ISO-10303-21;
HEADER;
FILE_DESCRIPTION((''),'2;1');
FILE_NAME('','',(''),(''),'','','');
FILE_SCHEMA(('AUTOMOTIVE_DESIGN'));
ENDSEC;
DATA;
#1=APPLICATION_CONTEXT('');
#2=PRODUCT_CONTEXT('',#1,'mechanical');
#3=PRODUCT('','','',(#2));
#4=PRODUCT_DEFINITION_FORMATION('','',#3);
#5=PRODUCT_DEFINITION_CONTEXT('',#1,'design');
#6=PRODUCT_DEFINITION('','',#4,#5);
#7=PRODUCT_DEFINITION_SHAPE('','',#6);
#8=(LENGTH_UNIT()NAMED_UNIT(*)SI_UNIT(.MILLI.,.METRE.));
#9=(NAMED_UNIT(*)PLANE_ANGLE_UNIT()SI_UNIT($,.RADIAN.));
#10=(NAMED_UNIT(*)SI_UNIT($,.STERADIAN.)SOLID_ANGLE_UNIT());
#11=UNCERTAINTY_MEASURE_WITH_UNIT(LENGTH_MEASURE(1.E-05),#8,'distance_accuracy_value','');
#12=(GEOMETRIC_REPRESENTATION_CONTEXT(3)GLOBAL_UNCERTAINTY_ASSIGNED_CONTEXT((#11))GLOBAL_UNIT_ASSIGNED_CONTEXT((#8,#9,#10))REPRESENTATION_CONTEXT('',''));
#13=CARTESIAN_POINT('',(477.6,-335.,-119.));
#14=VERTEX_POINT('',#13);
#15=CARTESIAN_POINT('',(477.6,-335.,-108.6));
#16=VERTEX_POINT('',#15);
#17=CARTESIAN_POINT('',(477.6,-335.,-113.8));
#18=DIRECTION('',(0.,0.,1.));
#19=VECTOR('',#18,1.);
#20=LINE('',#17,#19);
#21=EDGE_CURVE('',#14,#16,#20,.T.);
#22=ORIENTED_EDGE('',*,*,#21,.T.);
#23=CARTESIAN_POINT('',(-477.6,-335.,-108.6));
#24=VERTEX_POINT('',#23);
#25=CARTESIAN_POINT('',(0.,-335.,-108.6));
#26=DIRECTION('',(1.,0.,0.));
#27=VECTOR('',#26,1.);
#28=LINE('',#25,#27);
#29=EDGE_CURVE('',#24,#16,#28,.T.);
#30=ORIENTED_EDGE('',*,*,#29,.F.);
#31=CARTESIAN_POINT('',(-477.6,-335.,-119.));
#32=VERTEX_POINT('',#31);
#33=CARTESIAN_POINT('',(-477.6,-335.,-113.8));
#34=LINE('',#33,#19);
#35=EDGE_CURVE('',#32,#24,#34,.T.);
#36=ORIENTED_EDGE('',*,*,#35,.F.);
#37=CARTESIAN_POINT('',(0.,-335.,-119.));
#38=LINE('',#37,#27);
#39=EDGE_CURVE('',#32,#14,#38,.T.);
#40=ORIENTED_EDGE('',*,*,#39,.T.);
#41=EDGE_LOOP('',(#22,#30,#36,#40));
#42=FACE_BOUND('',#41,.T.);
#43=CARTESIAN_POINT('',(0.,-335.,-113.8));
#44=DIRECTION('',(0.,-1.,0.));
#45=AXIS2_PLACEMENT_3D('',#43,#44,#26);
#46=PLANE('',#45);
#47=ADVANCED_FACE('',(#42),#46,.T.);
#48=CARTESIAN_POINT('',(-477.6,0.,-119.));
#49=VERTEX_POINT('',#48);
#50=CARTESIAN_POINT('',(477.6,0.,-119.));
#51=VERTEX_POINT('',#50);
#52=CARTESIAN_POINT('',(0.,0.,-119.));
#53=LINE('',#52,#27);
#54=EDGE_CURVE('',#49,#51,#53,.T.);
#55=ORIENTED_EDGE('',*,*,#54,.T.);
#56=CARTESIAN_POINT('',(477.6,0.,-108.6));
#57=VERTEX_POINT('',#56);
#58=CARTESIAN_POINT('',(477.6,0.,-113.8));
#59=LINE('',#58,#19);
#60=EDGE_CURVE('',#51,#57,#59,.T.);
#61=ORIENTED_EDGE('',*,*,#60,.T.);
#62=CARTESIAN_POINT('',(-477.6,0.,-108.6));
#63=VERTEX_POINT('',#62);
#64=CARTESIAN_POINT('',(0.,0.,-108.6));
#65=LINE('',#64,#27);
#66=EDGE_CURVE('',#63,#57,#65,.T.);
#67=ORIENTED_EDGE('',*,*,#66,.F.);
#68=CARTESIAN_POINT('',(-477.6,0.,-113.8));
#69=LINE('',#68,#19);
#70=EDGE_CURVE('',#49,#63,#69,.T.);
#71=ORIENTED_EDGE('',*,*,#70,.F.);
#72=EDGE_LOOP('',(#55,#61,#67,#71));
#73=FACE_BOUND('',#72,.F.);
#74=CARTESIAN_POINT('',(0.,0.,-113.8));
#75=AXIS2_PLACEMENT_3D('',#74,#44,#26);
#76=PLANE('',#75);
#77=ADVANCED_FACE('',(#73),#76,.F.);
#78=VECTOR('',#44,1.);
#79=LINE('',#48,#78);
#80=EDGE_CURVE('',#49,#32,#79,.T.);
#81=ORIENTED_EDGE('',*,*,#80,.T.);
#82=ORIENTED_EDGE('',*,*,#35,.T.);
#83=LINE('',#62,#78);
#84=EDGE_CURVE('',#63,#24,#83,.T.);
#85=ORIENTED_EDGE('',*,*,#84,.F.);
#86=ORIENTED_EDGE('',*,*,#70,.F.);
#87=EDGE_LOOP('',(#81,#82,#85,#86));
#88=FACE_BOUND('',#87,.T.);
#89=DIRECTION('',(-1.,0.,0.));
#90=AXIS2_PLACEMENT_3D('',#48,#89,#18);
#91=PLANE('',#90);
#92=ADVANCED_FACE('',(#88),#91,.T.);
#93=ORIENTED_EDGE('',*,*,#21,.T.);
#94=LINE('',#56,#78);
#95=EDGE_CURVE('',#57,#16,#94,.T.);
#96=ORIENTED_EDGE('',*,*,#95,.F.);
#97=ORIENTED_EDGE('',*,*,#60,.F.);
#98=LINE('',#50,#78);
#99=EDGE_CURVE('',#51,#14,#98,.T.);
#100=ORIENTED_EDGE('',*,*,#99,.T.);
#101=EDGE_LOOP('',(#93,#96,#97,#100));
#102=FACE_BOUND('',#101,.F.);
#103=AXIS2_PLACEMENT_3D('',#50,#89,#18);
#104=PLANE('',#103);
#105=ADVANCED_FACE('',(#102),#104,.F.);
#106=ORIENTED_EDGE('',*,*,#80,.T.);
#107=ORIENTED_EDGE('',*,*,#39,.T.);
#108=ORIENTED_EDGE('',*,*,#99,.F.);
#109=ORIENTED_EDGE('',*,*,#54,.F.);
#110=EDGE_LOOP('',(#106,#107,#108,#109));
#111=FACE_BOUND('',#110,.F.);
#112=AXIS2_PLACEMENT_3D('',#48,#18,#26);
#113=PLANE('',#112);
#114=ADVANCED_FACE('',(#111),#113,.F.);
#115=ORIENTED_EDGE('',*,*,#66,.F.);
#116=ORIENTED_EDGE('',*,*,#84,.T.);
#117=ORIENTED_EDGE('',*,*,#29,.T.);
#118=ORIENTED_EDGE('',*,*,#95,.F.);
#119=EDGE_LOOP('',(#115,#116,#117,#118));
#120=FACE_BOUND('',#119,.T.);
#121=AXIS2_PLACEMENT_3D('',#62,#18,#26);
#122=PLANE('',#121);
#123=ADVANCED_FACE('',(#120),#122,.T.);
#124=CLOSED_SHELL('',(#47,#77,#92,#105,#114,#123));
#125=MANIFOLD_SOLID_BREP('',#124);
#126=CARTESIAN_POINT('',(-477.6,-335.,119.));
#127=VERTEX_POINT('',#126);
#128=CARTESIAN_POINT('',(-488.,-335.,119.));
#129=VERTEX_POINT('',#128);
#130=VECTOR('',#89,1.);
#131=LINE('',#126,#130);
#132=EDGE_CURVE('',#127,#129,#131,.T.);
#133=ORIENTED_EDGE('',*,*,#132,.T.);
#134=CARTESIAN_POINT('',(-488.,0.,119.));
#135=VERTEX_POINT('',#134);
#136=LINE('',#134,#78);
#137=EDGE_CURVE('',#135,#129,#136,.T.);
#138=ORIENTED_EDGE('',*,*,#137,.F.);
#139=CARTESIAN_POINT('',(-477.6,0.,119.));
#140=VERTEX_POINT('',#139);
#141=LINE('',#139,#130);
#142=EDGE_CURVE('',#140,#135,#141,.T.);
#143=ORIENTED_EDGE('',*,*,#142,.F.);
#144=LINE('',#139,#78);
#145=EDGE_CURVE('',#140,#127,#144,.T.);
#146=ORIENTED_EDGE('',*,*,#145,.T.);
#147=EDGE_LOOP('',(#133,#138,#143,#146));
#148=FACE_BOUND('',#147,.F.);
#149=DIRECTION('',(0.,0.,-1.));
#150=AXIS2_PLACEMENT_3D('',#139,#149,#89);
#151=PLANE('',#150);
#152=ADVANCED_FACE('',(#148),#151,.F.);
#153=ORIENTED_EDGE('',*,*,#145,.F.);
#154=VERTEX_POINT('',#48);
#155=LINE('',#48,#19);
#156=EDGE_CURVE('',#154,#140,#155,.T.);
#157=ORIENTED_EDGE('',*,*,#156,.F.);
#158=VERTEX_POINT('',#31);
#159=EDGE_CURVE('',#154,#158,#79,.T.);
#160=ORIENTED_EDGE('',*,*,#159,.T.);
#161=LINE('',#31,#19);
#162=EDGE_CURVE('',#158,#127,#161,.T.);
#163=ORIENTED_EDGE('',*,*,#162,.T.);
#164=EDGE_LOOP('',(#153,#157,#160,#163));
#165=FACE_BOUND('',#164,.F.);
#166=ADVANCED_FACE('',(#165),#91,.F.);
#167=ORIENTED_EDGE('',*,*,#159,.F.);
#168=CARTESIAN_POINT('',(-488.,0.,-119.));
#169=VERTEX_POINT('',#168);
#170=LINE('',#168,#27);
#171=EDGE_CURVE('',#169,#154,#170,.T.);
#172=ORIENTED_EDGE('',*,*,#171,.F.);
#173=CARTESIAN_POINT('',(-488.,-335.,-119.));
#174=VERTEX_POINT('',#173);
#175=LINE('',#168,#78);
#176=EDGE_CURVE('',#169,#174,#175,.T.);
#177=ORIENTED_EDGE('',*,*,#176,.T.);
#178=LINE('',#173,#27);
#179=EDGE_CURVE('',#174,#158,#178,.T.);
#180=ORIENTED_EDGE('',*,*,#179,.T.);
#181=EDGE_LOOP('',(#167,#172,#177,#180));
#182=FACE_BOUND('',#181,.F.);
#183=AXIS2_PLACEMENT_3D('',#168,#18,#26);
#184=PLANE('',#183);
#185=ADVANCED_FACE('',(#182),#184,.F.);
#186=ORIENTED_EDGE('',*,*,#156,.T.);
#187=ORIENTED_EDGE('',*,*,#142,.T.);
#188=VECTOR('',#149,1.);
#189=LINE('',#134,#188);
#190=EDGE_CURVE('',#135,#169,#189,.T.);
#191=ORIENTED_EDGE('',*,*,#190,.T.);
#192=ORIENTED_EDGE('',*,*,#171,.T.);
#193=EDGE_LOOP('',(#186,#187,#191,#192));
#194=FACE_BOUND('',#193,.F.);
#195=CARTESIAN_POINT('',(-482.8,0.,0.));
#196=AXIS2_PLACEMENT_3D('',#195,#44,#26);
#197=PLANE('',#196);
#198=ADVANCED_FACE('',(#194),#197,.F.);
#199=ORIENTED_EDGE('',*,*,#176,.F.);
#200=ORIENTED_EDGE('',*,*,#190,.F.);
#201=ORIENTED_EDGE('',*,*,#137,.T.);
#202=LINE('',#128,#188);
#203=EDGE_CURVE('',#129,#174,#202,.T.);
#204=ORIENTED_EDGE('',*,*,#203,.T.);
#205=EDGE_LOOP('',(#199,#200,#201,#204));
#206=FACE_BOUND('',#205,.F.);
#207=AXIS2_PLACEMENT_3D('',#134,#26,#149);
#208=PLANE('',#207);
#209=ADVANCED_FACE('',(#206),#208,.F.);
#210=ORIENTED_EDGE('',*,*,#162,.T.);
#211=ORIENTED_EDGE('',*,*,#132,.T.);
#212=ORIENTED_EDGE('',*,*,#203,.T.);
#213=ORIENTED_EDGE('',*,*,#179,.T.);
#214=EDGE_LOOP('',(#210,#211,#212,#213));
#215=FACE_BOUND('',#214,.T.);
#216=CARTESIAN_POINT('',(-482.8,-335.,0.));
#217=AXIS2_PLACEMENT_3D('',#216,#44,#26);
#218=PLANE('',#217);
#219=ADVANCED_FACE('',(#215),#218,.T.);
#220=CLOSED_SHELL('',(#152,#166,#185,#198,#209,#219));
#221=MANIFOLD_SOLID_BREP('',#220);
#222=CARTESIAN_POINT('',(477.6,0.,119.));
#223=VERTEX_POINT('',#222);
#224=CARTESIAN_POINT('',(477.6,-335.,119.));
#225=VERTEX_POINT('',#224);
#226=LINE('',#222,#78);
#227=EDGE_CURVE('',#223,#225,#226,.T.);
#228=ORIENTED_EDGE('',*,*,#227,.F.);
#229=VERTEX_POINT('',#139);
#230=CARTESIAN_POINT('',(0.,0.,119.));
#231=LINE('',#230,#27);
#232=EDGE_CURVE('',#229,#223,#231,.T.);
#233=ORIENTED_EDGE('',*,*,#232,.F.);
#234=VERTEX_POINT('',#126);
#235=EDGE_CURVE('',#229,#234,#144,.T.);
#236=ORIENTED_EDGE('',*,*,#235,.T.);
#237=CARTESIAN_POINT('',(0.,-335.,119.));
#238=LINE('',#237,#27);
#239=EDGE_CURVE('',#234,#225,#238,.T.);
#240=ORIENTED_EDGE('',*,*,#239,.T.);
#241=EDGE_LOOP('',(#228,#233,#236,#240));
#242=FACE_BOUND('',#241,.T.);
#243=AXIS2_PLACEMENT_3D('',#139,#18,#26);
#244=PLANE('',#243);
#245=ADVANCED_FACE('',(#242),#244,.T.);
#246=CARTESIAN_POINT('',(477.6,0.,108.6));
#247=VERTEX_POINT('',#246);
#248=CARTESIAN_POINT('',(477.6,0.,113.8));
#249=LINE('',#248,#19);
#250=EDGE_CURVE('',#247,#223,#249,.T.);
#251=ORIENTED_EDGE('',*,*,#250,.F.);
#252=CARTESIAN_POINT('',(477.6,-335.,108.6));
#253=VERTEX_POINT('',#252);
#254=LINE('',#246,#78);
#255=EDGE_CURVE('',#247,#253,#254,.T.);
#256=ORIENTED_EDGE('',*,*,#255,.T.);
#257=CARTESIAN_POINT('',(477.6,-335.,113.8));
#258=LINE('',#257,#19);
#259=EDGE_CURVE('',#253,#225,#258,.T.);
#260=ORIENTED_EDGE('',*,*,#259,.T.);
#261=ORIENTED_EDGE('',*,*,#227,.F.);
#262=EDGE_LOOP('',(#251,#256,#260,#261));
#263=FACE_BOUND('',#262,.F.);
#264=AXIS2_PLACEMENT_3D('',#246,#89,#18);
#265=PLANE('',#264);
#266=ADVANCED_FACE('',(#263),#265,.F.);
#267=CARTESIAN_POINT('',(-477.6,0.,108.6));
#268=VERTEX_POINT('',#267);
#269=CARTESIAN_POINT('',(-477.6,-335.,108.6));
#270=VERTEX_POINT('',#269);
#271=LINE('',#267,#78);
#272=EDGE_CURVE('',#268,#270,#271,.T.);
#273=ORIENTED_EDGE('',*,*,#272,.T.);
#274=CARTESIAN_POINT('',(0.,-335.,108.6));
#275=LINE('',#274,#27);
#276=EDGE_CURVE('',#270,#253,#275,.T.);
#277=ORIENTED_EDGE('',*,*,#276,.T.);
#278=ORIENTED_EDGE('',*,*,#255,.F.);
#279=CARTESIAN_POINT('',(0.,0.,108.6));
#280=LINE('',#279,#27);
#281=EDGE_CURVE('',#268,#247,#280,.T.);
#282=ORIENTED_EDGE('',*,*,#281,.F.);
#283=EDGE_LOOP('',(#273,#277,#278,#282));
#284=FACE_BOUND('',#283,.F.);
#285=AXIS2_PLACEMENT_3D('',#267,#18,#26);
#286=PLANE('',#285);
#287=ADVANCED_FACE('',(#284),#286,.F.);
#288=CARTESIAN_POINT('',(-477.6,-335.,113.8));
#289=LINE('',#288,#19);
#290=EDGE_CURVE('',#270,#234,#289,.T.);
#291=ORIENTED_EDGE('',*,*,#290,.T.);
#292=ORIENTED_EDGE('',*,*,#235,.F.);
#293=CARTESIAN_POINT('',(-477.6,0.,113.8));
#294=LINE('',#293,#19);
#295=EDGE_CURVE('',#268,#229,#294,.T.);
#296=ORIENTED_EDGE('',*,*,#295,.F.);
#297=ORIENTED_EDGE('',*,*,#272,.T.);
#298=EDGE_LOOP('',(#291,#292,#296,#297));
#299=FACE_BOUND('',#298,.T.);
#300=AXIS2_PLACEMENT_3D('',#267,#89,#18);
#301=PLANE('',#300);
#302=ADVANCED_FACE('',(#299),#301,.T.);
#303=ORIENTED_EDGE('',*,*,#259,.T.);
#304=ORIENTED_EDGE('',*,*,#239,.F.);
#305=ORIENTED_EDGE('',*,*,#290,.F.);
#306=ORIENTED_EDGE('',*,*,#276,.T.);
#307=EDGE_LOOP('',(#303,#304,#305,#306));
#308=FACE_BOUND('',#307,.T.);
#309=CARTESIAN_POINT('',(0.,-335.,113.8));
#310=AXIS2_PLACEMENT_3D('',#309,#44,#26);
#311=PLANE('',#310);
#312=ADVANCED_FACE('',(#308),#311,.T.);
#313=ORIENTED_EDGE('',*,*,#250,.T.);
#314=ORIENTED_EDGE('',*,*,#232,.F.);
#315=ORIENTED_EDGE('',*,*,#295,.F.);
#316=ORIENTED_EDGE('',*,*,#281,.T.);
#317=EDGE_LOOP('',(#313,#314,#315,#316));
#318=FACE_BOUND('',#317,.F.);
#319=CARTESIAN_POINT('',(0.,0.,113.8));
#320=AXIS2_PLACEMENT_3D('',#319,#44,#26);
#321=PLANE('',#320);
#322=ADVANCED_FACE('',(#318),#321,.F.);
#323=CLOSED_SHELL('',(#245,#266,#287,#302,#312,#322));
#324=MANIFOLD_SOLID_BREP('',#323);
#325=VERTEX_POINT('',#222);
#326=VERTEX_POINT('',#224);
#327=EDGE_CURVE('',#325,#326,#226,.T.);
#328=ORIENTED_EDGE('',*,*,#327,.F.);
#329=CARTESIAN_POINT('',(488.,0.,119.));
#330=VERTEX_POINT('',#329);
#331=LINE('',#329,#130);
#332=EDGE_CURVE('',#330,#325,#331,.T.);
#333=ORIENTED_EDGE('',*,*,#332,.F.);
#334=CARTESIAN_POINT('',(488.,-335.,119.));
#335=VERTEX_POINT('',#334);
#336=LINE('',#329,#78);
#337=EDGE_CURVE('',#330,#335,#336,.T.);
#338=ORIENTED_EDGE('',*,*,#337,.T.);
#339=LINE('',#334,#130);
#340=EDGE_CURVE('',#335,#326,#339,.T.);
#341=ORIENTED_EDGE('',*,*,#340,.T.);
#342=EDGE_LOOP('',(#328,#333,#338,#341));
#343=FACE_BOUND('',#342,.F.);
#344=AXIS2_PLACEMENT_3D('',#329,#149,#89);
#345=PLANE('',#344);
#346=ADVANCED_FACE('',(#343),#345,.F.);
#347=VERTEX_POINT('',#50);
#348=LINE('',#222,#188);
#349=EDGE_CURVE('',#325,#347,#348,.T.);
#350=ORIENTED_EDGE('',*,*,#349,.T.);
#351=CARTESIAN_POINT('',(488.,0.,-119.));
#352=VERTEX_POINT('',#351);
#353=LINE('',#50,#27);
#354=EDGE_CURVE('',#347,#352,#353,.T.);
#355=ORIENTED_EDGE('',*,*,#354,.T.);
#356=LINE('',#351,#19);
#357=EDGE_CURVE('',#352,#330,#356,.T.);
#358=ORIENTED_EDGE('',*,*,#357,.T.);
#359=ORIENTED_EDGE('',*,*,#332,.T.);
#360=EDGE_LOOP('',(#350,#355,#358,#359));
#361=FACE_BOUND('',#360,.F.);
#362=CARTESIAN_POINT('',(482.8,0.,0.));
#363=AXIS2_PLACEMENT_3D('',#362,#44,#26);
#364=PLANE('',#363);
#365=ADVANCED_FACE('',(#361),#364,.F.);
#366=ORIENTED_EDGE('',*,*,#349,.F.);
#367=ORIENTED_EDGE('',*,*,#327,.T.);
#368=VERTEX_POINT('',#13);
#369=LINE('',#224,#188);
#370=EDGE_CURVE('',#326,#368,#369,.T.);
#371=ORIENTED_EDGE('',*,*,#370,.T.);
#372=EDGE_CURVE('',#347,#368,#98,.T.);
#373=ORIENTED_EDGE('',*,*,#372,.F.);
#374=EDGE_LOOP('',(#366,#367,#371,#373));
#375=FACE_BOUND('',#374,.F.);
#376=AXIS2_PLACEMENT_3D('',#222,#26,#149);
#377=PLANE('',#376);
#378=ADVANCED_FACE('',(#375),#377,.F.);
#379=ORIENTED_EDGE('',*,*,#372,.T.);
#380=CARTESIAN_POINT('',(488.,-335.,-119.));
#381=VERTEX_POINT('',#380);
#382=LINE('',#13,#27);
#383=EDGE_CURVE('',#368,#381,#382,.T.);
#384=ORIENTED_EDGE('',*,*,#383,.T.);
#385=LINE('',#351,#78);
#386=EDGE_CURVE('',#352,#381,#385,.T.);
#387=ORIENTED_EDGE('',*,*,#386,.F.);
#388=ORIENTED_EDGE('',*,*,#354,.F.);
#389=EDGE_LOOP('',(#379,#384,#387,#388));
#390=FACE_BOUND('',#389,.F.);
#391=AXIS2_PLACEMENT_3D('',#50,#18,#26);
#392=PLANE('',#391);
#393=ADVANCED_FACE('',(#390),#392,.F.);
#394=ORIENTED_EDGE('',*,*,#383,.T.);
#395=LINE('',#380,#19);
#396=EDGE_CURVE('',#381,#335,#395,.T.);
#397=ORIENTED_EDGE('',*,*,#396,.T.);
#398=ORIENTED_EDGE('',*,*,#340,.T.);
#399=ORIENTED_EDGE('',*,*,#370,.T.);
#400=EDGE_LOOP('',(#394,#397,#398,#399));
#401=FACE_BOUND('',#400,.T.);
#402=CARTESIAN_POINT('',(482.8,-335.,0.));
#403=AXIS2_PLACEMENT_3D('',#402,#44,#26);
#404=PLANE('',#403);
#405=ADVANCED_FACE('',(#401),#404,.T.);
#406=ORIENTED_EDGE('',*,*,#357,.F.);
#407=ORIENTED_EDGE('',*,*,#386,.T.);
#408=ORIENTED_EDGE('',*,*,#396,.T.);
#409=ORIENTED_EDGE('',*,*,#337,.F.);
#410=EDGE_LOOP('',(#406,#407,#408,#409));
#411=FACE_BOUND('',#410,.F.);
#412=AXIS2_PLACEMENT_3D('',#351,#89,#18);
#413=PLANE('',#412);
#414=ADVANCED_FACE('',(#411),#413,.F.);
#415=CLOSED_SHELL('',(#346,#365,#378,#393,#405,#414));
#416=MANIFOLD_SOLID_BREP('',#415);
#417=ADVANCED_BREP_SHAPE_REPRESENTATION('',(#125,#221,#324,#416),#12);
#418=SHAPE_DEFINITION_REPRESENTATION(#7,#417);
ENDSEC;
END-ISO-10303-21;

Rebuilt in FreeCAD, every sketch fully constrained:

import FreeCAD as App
import Part
import Sketcher
from FreeCAD import Vector
Q = App.Units.Quantity

doc = App.newDocument("Part")
body = doc.addObject("PartDesign::Body", "Body")

# Sketch on XZ plane
sketch1 = body.newObject("Sketcher::SketchObject", "Sketch")
sketch1.AttachmentSupport = (doc.getObject("XZ_Plane"), [""])
sketch1.MapMode = "FlatFace"
sketch1.addGeometry([
    Part.LineSegment(Vector(-478, -109, 0), Vector(-478, -119, 0)),
    Part.LineSegment(Vector(-478, -119, 0), Vector(478, -119, 0)),
    Part.LineSegment(Vector(478, -119, 0), Vector(478, -109, 0)),
    Part.LineSegment(Vector(478, -109, 0), Vector(-478, -109, 0)),
], False)
sketch1.addConstraint([
    Sketcher.Constraint("Coincident", 0, 2, 1, 1),
    Sketcher.Constraint("Coincident", 1, 2, 2, 1),
    Sketcher.Constraint("Coincident", 2, 2, 3, 1),
    Sketcher.Constraint("Coincident", 3, 2, 0, 1),
    Sketcher.Constraint("Vertical", 0),
    Sketcher.Constraint("Horizontal", 1),
    Sketcher.Constraint("Vertical", 2),
    Sketcher.Constraint("Horizontal", 3),
    Sketcher.Constraint("DistanceX", 1, 1, 1, 2, Q("955.2 mm")),
    Sketcher.Constraint("DistanceY", 0, 2, 0, 1, Q("10.4 mm")),
    Sketcher.Constraint("DistanceY", 0, 2, -1, 1, Q("119 mm")),
    Sketcher.Constraint("DistanceX", 0, 2, -1, 1, Q("477.6 mm")),
])
pad1 = body.newObject("PartDesign::Pad", "Pad")
pad1.Profile = sketch1
pad1.Length = 335
body2 = doc.addObject("PartDesign::Body", "Body001")

# Sketch on XZ plane
sketch2 = body2.newObject("Sketcher::SketchObject", "Sketch001")
sketch2.AttachmentSupport = (doc.getObject("XZ_Plane001"), [""])
sketch2.MapMode = "FlatFace"
sketch2.addGeometry([
    Part.LineSegment(Vector(-478, 119, 0), Vector(-478, 109, 0)),
    Part.LineSegment(Vector(-478, 109, 0), Vector(478, 109, 0)),
    Part.LineSegment(Vector(478, 109, 0), Vector(478, 119, 0)),
    Part.LineSegment(Vector(478, 119, 0), Vector(-478, 119, 0)),
], False)
sketch2.addConstraint([
    Sketcher.Constraint("Coincident", 0, 2, 1, 1),
    Sketcher.Constraint("Coincident", 1, 2, 2, 1),
    Sketcher.Constraint("Coincident", 2, 2, 3, 1),
    Sketcher.Constraint("Coincident", 3, 2, 0, 1),
    Sketcher.Constraint("Vertical", 0),
    Sketcher.Constraint("Horizontal", 1),
    Sketcher.Constraint("Vertical", 2),
    Sketcher.Constraint("Horizontal", 3),
    Sketcher.Constraint("DistanceX", 1, 1, 1, 2, Q("955.2 mm")),
    Sketcher.Constraint("DistanceY", 0, 2, 0, 1, Q("10.4 mm")),
    Sketcher.Constraint("DistanceY", -1, 1, 2, 2, Q("119 mm")),
    Sketcher.Constraint("DistanceX", 0, 2, -1, 1, Q("477.6 mm")),
])
pad2 = body2.newObject("PartDesign::Pad", "Pad001")
pad2.Profile = sketch2
pad2.Length = 335
body3 = doc.addObject("PartDesign::Body", "Body002")

# Sketch on XZ plane
sketch3 = body3.newObject("Sketcher::SketchObject", "Sketch002")
sketch3.AttachmentSupport = (doc.getObject("XZ_Plane002"), [""])
sketch3.MapMode = "FlatFace"
sketch3.addGeometry([
    Part.LineSegment(Vector(-488, -119, 0), Vector(-478, -119, 0)),
    Part.LineSegment(Vector(-478, -119, 0), Vector(-478, 119, 0)),
    Part.LineSegment(Vector(-478, 119, 0), Vector(-488, 119, 0)),
    Part.LineSegment(Vector(-488, 119, 0), Vector(-488, -119, 0)),
], False)
sketch3.addConstraint([
    Sketcher.Constraint("Coincident", 0, 2, 1, 1),
    Sketcher.Constraint("Coincident", 1, 2, 2, 1),
    Sketcher.Constraint("Coincident", 2, 2, 3, 1),
    Sketcher.Constraint("Coincident", 3, 2, 0, 1),
    Sketcher.Constraint("Horizontal", 0),
    Sketcher.Constraint("Vertical", 1),
    Sketcher.Constraint("Horizontal", 2),
    Sketcher.Constraint("Vertical", 3),
    Sketcher.Constraint("DistanceY", 1, 1, 1, 2, Q("238 mm")),
    Sketcher.Constraint("DistanceX", 0, 1, 0, 2, Q("10.4 mm")),
    Sketcher.Constraint("DistanceY", 0, 2, -1, 1, Q("119 mm")),
    Sketcher.Constraint("DistanceX", 2, 2, -1, 1, Q("488 mm")),
])
pad3 = body3.newObject("PartDesign::Pad", "Pad002")
pad3.Profile = sketch3
pad3.Length = 335
body4 = doc.addObject("PartDesign::Body", "Body003")

# Sketch on XZ plane
sketch4 = body4.newObject("Sketcher::SketchObject", "Sketch003")
sketch4.AttachmentSupport = (doc.getObject("XZ_Plane003"), [""])
sketch4.MapMode = "FlatFace"
sketch4.addGeometry([
    Part.LineSegment(Vector(478, -119, 0), Vector(488, -119, 0)),
    Part.LineSegment(Vector(488, -119, 0), Vector(488, 119, 0)),
    Part.LineSegment(Vector(488, 119, 0), Vector(478, 119, 0)),
    Part.LineSegment(Vector(478, 119, 0), Vector(478, -119, 0)),
], False)
sketch4.addConstraint([
    Sketcher.Constraint("Coincident", 0, 2, 1, 1),
    Sketcher.Constraint("Coincident", 1, 2, 2, 1),
    Sketcher.Constraint("Coincident", 2, 2, 3, 1),
    Sketcher.Constraint("Coincident", 3, 2, 0, 1),
    Sketcher.Constraint("Horizontal", 0),
    Sketcher.Constraint("Vertical", 1),
    Sketcher.Constraint("Horizontal", 2),
    Sketcher.Constraint("Vertical", 3),
    Sketcher.Constraint("DistanceY", 1, 1, 1, 2, Q("238 mm")),
    Sketcher.Constraint("DistanceX", 0, 1, 0, 2, Q("10.4 mm")),
    Sketcher.Constraint("DistanceX", -1, 1, 0, 2, Q("488 mm")),
    Sketcher.Constraint("DistanceY", 0, 2, -1, 1, Q("119 mm")),
])
pad4 = body4.newObject("PartDesign::Pad", "Pad003")
pad4.Profile = sketch4
pad4.Length = 335

doc.recompute()
